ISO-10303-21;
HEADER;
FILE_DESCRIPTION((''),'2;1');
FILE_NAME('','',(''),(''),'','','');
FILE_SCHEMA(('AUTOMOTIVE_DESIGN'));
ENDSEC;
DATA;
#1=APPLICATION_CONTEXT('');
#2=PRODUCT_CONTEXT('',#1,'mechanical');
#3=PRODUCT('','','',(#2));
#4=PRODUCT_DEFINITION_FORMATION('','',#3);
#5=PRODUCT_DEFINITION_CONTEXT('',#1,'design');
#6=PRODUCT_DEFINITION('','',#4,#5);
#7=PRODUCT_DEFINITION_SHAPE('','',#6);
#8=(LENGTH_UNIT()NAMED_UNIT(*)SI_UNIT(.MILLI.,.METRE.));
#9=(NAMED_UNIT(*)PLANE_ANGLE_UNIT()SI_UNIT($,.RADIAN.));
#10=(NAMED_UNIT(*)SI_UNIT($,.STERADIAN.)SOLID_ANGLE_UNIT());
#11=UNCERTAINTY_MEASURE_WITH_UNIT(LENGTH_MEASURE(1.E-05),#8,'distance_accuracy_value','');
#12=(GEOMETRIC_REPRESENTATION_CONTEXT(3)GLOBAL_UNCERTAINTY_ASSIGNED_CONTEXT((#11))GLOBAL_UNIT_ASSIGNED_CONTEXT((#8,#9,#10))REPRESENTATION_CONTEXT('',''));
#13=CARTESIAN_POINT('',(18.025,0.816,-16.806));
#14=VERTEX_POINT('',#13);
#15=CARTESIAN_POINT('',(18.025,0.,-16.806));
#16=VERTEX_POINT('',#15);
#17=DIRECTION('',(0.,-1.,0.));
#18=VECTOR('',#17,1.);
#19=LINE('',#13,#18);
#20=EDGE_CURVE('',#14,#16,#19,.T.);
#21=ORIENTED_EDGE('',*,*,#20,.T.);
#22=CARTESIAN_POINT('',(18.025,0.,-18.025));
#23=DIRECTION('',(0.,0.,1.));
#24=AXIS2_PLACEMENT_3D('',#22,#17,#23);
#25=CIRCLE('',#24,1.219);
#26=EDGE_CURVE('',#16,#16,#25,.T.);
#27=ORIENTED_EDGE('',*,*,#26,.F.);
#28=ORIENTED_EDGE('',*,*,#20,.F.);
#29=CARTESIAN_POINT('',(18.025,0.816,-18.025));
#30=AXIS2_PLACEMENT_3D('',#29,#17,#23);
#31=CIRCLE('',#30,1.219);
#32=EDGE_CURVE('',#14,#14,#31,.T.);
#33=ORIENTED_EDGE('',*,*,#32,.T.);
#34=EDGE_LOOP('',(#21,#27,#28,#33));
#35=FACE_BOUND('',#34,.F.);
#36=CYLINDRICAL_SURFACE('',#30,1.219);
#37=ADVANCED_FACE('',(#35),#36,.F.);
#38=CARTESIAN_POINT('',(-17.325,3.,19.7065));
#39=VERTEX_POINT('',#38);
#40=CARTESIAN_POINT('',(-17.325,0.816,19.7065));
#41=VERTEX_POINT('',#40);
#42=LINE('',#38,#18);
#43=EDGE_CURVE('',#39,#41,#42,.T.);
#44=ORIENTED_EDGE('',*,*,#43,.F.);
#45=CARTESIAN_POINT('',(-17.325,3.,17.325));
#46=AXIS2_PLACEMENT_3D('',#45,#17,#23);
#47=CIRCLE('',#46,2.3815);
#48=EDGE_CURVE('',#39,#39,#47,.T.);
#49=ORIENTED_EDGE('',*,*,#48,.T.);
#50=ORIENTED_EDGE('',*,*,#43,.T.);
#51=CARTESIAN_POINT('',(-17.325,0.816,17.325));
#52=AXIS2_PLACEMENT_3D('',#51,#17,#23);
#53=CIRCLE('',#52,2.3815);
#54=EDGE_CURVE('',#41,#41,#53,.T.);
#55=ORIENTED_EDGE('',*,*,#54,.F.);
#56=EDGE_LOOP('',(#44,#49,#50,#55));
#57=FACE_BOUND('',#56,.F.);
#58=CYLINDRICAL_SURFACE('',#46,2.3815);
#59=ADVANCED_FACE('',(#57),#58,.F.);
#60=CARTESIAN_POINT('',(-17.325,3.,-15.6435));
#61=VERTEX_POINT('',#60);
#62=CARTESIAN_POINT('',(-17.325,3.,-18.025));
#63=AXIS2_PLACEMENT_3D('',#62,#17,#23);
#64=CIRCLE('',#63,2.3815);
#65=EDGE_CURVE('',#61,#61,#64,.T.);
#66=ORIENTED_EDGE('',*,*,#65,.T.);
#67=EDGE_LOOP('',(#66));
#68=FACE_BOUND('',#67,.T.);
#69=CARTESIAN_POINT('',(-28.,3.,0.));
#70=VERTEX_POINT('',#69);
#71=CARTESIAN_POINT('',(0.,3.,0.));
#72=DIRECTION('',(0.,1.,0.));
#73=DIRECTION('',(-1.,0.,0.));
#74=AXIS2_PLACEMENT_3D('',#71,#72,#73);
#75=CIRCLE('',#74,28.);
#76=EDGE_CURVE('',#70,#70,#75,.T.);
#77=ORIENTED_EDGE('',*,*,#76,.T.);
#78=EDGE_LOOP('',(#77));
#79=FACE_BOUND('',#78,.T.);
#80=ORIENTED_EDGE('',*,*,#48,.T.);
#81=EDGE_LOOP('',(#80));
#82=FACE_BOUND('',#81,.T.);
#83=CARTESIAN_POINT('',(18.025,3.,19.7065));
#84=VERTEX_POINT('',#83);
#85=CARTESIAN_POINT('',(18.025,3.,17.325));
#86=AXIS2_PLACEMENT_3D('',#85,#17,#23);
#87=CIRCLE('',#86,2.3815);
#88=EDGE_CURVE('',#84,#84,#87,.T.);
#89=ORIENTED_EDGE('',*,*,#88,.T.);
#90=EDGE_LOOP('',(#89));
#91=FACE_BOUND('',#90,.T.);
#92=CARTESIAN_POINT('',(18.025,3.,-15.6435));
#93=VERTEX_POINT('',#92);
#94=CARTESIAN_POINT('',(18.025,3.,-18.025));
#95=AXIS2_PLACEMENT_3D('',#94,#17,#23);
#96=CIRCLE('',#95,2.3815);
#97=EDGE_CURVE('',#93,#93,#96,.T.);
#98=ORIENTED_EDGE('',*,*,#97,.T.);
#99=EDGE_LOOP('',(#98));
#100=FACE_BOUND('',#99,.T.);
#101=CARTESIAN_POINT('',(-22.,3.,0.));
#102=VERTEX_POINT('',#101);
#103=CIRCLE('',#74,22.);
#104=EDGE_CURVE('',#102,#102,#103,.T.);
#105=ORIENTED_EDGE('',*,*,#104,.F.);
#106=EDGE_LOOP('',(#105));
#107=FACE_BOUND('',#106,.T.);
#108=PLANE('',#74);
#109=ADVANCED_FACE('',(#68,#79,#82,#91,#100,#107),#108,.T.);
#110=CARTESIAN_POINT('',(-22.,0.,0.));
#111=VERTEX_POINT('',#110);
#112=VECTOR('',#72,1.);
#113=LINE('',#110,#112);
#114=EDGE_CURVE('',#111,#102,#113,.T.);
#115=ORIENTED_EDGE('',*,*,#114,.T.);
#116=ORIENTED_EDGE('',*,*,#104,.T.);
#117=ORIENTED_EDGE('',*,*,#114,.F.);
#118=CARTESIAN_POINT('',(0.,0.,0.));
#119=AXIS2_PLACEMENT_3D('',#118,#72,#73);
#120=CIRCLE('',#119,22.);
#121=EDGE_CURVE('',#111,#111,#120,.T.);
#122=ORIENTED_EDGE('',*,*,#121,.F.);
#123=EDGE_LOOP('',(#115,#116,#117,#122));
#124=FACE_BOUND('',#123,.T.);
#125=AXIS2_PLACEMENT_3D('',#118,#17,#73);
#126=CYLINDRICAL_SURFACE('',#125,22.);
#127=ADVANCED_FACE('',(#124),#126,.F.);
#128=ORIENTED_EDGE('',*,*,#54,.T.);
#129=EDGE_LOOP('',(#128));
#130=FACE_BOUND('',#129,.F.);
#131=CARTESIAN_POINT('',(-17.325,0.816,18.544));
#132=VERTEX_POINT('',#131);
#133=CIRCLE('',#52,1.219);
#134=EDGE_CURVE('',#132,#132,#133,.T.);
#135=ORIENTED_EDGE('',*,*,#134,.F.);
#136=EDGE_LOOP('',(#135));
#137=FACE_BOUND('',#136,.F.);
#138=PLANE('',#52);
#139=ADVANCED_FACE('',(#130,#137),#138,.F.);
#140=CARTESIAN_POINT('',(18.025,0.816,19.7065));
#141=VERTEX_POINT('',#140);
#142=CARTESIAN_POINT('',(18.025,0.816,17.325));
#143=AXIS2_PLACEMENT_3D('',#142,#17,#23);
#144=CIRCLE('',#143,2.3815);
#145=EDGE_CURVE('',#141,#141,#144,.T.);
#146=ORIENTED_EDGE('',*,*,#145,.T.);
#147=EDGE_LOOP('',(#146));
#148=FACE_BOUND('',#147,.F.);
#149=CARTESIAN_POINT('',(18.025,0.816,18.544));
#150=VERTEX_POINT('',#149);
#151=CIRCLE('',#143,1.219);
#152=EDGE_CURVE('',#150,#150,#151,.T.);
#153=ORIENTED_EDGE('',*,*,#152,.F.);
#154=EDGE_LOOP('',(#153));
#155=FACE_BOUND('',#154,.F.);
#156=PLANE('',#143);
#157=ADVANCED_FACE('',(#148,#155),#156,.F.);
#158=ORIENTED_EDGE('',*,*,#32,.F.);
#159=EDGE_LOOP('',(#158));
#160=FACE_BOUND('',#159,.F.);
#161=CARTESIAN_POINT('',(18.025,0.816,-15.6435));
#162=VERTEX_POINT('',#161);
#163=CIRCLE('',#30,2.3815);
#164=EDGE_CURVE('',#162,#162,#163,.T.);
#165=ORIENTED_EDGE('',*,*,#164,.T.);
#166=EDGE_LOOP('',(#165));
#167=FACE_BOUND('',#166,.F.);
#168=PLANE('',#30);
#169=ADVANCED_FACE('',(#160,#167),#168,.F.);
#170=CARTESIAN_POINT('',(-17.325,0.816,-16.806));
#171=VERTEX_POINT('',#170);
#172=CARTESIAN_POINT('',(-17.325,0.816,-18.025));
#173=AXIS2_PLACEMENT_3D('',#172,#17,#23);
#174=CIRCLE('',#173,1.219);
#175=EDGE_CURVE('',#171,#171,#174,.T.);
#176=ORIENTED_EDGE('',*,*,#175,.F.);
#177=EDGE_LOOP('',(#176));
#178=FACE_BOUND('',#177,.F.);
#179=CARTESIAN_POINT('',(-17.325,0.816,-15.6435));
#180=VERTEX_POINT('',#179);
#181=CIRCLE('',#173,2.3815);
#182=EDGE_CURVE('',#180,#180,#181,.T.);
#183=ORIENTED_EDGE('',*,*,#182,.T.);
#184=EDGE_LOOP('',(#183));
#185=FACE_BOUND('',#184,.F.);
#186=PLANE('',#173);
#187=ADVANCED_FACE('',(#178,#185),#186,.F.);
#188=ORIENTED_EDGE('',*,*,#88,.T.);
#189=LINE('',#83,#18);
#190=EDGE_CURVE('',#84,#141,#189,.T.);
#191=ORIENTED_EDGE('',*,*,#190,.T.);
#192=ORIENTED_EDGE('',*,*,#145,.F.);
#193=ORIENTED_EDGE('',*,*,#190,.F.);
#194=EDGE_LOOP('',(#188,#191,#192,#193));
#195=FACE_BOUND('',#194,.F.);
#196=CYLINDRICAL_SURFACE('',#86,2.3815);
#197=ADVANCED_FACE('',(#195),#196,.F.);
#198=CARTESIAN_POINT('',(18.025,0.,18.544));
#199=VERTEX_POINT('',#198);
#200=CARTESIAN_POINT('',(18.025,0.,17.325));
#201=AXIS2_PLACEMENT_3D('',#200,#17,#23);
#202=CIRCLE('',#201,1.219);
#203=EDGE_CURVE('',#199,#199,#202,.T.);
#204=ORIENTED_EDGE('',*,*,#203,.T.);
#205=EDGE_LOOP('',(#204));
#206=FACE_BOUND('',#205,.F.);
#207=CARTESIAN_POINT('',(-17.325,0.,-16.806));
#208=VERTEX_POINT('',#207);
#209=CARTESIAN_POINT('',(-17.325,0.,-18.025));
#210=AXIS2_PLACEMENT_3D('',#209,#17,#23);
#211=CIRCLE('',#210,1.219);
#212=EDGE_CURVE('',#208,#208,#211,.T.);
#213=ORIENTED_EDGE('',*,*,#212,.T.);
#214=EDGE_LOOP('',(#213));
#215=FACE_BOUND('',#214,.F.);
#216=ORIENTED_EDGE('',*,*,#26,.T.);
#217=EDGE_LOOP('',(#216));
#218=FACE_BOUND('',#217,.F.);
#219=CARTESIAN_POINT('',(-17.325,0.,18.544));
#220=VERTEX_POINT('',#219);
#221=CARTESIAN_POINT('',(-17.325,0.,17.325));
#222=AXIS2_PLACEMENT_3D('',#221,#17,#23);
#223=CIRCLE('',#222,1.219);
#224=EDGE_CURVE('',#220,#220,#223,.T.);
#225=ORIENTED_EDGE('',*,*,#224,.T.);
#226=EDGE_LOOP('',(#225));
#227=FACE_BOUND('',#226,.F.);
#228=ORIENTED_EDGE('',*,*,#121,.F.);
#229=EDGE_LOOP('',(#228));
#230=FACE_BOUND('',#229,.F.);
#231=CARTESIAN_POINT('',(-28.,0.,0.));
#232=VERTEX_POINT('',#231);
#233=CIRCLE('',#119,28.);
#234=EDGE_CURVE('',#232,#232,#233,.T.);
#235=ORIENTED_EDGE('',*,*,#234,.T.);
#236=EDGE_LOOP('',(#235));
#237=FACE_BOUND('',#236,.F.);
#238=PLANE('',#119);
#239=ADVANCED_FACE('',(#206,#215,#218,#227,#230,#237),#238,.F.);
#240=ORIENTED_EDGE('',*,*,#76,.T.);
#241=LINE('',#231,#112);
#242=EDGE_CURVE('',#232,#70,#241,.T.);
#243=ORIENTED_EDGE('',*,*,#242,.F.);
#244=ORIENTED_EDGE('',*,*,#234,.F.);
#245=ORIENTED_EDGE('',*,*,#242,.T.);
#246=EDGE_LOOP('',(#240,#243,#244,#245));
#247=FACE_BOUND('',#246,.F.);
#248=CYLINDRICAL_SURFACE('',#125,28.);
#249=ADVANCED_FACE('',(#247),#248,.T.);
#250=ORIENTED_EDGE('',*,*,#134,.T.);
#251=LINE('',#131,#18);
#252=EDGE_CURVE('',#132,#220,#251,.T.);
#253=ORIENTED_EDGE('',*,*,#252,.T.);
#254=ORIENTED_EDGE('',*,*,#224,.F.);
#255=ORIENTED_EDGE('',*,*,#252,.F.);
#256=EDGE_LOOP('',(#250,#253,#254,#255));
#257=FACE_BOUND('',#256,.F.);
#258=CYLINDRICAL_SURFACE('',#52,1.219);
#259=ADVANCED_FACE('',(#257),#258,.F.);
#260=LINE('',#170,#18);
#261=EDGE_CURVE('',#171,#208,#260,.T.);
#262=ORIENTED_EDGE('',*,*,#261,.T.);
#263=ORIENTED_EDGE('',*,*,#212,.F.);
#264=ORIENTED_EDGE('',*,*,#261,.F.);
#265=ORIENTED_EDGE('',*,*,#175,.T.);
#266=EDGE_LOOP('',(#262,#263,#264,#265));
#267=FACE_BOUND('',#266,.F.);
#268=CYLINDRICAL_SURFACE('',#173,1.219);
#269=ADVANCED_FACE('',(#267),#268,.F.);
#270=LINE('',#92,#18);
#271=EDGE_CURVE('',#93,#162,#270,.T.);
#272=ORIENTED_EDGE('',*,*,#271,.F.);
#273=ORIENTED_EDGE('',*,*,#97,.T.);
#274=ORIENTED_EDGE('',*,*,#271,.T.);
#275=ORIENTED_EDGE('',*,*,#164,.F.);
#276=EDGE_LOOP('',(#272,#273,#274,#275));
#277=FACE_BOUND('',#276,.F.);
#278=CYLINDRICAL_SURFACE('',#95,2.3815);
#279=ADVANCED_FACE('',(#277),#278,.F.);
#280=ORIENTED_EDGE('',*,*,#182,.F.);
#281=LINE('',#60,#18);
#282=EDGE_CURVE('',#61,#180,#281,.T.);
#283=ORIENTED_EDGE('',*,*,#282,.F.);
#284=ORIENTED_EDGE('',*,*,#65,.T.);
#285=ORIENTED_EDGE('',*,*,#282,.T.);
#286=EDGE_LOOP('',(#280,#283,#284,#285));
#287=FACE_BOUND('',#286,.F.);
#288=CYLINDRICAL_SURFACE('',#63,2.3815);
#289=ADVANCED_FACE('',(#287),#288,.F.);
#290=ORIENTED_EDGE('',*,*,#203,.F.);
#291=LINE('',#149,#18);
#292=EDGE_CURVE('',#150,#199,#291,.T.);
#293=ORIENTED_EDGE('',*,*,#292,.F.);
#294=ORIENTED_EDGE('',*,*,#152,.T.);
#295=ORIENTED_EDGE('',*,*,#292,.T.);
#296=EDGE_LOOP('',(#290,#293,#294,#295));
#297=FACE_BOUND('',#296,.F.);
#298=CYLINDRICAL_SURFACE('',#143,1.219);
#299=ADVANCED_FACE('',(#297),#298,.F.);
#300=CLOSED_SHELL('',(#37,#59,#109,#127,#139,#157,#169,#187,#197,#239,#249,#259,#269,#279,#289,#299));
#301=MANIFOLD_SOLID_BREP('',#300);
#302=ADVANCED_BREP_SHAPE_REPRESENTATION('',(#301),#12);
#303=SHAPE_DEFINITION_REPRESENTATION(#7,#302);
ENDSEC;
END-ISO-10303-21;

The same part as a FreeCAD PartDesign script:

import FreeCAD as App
import Part
import Sketcher
Q = App.Units.Quantity

doc = App.newDocument("Part")
body = doc.addObject("PartDesign::Body", "Body")

# Sketch on XZ plane
sketch1 = body.newObject("Sketcher::SketchObject", "Sketch")
sketch1.AttachmentSupport = (doc.getObject("XZ_Plane"), [""])
sketch1.MapMode = "FlatFace"
sketch1.addGeometry([
    Part.Circle(App.Vector(0, 0, 0), App.Vector(0, 0, 1), 28),
    Part.Circle(App.Vector(0, 0, 0), App.Vector(0, 0, 1), 22),
], False)
sketch1.addConstraint([
    Sketcher.Constraint("Coincident", 0, 3, -1, 1),
    Sketcher.Constraint("Coincident", 1, 3, -1, 1),
    Sketcher.Constraint("Diameter", 0, Q("56 mm")),
    Sketcher.Constraint("Diameter", 1, Q("44 mm")),
])
pad1 = body.newObject("PartDesign::Pad", "Pad")
pad1.Profile = sketch1
pad1.Length = 3
pad1.Reversed = True

# Sketch on XZ plane
sketch2 = body.newObject("Sketcher::SketchObject", "Sketch001")
sketch2.AttachmentSupport = (doc.getObject("XZ_Plane"), [""])
sketch2.MapMode = "FlatFace"
sketch2.AttachmentOffset = App.Placement(App.Vector(0, 0, -3), App.Rotation())
sketch2.addGeometry([
    Part.Circle(App.Vector(-17.325, 17.325, 0), App.Vector(0, 0, 1), 1.219),
    Part.Circle(App.Vector(-17.325, -18.025, 0), App.Vector(0, 0, 1), 1.219),
    Part.Circle(App.Vector(18.025, -18.025, 0), App.Vector(0, 0, 1), 1.219),
    Part.Circle(App.Vector(18.025, 17.325, 0), App.Vector(0, 0, 1), 1.219),
], False)
sketch2.addConstraint([
    Sketcher.Constraint("Equal", 0, 1),
    Sketcher.Constraint("Equal", 1, 2),
    Sketcher.Constraint("Equal", 2, 3),
    Sketcher.Constraint("Horizontal", 1, 3, 2, 3),
    Sketcher.Constraint("Horizontal", 0, 3, 3, 3),
    Sketcher.Constraint("Vertical", 0, 3, 1, 3),
    Sketcher.Constraint("Vertical", 2, 3, 3, 3),
    Sketcher.Constraint("Diameter", 0, Q("2.438 mm")),
    Sketcher.Constraint("DistanceY", 1, 3, 0, 3, Q("35.35 mm")),
    Sketcher.Constraint("DistanceX", 1, 3, 2, 3, Q("35.35 mm")),
    Sketcher.Constraint("DistanceX", 0, 3, -1, 1, Q("17.325 mm")),
    Sketcher.Constraint("DistanceY", -1, 1, 0, 3, Q("17.325 mm")),
])
doc.recompute()
hole = body.newObject("PartDesign::Hole", "Hole")
hole.Profile = sketch2
hole.ThreadType = "None"
hole.Diameter = 2.438
hole.DepthType = "ThroughAll"
hole.HoleCutType = "Counterbore"
hole.HoleCutDiameter = 4.763
hole.HoleCutDepth = 2.184
hole.Reversed = True

doc.recompute()
